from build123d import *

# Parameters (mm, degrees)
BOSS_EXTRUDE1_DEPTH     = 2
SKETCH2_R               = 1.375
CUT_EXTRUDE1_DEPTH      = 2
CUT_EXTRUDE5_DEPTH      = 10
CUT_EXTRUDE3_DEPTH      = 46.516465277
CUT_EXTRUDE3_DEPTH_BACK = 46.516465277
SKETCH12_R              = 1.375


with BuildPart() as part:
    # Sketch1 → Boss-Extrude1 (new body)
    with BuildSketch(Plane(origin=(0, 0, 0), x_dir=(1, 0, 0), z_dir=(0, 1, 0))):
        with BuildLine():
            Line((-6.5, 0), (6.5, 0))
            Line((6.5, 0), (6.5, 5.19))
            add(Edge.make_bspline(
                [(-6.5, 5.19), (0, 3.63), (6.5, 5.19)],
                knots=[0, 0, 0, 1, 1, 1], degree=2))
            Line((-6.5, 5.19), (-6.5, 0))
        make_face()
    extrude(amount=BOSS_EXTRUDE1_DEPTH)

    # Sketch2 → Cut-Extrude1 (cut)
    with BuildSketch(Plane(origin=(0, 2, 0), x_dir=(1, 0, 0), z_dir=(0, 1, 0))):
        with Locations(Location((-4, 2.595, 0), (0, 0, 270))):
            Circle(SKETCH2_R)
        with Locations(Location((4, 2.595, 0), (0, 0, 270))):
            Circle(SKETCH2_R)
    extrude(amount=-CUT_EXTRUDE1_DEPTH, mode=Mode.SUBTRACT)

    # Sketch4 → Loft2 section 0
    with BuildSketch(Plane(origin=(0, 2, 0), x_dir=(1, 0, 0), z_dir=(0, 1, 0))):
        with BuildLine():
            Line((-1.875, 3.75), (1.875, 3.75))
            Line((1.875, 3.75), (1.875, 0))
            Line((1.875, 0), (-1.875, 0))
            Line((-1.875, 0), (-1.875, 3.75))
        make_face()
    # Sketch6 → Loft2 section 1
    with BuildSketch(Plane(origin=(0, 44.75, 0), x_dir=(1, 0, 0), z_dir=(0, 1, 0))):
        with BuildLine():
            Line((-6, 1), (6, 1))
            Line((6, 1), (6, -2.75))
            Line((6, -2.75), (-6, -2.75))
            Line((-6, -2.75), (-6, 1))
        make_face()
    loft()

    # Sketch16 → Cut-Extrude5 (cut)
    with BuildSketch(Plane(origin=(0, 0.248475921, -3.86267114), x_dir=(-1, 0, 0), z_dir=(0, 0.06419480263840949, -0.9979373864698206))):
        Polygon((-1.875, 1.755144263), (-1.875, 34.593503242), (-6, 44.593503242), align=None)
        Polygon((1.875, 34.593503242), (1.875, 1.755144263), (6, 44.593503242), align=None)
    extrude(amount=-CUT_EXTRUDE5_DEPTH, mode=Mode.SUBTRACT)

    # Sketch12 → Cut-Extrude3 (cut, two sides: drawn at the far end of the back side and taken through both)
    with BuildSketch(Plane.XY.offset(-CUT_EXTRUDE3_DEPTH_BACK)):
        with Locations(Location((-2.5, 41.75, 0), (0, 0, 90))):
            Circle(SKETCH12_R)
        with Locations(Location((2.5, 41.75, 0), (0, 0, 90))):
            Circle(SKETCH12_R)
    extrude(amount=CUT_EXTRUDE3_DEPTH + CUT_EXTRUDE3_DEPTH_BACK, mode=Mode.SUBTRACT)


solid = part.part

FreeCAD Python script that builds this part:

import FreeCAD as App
import Part
import Sketcher
from FreeCAD import Vector
Q = App.Units.Quantity

doc = App.newDocument("Part")
body = doc.addObject("PartDesign::Body", "Body")

# Sketch on XZ plane
sketch1 = doc.addObject("Sketcher::SketchObject", "Sketch")
body.addObject(sketch1)
sketch1.AttachmentSupport = (doc.XZ_Plane, [""])
sketch1.MapMode = "FlatFace"
sketch1.addGeometry([
    Part.LineSegment(Vector(-6.5, 0, 0), Vector(6.5, 0, 0)),
    Part.LineSegment(Vector(6.5, 0, 0), Vector(6.5, -5.19, 0)),
    Part.BSplineCurve([Vector(-6.5, -5.19, 0), Vector(0, -3.63, 0), Vector(6.5, -5.19, 0)], [3, 3], [0, 1], False, 2, [1, 1, 1], False),
    Part.LineSegment(Vector(-6.5, -5.19, 0), Vector(-6.5, 0, 0)),
], False)
sketch1.addConstraint([
    Sketcher.Constraint("Block", 2),
    Sketcher.Constraint("Coincident", 0, 2, 1, 1),
    Sketcher.Constraint("Coincident", 1, 2, 2, 2),
    Sketcher.Constraint("Coincident", 2, 1, 3, 1),
    Sketcher.Constraint("Coincident", 3, 2, 0, 1),
    Sketcher.Constraint("Horizontal", 0),
    Sketcher.Constraint("Vertical", 1),
    Sketcher.Constraint("Vertical", 3),
    Sketcher.Constraint("PointOnObject", 0, 2, -1),
])
pad1 = doc.addObject("PartDesign::Pad", "Pad")
body.addObject(pad1)
pad1.Profile = sketch1
pad1.Length = 2
pad1.Reversed = True

# Sketch on XZ plane
sketch2 = doc.addObject("Sketcher::SketchObject", "Sketch001")
body.addObject(sketch2)
sketch2.AttachmentSupport = (doc.XZ_Plane, [""])
sketch2.MapMode = "FlatFace"
sketch2.AttachmentOffset = App.Placement(Vector(0, 0, -2), App.Rotation())
sketch2.addGeometry([
    Part.Circle(Vector(-4, -2.6, 0), Vector(0, 0, 1), 1.4),
    Part.Circle(Vector(4, -2.6, 0), Vector(0, 0, 1), 1.4),
], False)
sketch2.addConstraint([
    Sketcher.Constraint("Equal", 0, 1),
    Sketcher.Constraint("Symmetric", 0, 3, 1, 3, -2),
    Sketcher.Constraint("Diameter", 0, Q("2.75 mm")),
    Sketcher.Constraint("DistanceX", 0, 3, -1, 1, Q("4 mm")),
    Sketcher.Constraint("DistanceY", 0, 3, -1, 1, Q("2.595 mm")),
])
pocket1 = doc.addObject("PartDesign::Pocket", "Pocket")
body.addObject(pocket1)
pocket1.Profile = sketch2
pocket1.Length = 2
pocket1.Reversed = True

# Sketch on XZ plane
sketch3 = doc.addObject("Sketcher::SketchObject", "Sketch002")
body.addObject(sketch3)
sketch3.AttachmentSupport = (doc.XZ_Plane, [""])
sketch3.MapMode = "FlatFace"
sketch3.AttachmentOffset = App.Placement(Vector(0, 0, -2), App.Rotation())
sketch3.addGeometry([
    Part.LineSegment(Vector(1.9, -3.8, 0), Vector(-1.9, -3.8, 0)),
    Part.LineSegment(Vector(-1.9, -3.8, 0), Vector(-1.9, 0, 0)),
    Part.LineSegment(Vector(-1.9, 0, 0), Vector(1.9, 0, 0)),
    Part.LineSegment(Vector(1.9, 0, 0), Vector(1.9, -3.8, 0)),
], False)
sketch3.addConstraint([
    Sketcher.Constraint("Coincident", 0, 2, 1, 1),
    Sketcher.Constraint("Coincident", 1, 2, 2, 1),
    Sketcher.Constraint("Coincident", 2, 2, 3, 1),
    Sketcher.Constraint("Coincident", 3, 2, 0, 1),
    Sketcher.Constraint("Horizontal", 0),
    Sketcher.Constraint("Vertical", 1),
    Sketcher.Constraint("Horizontal", 2),
    Sketcher.Constraint("Vertical", 3),
    Sketcher.Constraint("Symmetric", 1, 2, 2, 2, -1, 1),
    Sketcher.Constraint("Equal", 2, 1),
    Sketcher.Constraint("DistanceX", 0, 2, 0, 1, Q("3.75 mm")),
])

# Sketch on XZ plane
sketch4 = doc.addObject("Sketcher::SketchObject", "Sketch003")
body.addObject(sketch4)
sketch4.AttachmentSupport = (doc.XZ_Plane, [""])
sketch4.MapMode = "FlatFace"
sketch4.AttachmentOffset = App.Placement(Vector(0, 0, -44.75), App.Rotation())
sketch4.addGeometry([
    Part.LineSegment(Vector(6, -1, 0), Vector(-6, -1, 0)),
    Part.LineSegment(Vector(-6, -1, 0), Vector(-6, 2.8, 0)),
    Part.LineSegment(Vector(-6, 2.8, 0), Vector(6, 2.8, 0)),
    Part.LineSegment(Vector(6, 2.8, 0), Vector(6, -1, 0)),
], False)
sketch4.addConstraint([
    Sketcher.Constraint("Coincident", 0, 2, 1, 1),
    Sketcher.Constraint("Coincident", 1, 2, 2, 1),
    Sketcher.Constraint("Coincident", 2, 2, 3, 1),
    Sketcher.Constraint("Coincident", 3, 2, 0, 1),
    Sketcher.Constraint("Horizontal", 0),
    Sketcher.Constraint("Vertical", 1),
    Sketcher.Constraint("Horizontal", 2),
    Sketcher.Constraint("Vertical", 3),
    Sketcher.Constraint("DistanceX", 0, 2, 0, 1, Q("12 mm")),
    Sketcher.Constraint("DistanceX", 0, 2, -1, 1, Q("6 mm")),
    Sketcher.Constraint("DistanceY", 0, 2, -1, 1, Q("1 mm")),
    Sketcher.Constraint("DistanceY", 1, 1, 1, 2, Q("3.75 mm")),
])

additiveloft = doc.addObject("PartDesign::AdditiveLoft", "AdditiveLoft")
body.addObject(additiveloft)
additiveloft.Profile = sketch3
additiveloft.Sections = [sketch4]

# Sketch on an angled plane
sketch5 = doc.addObject("Sketcher::SketchObject", "Sketch004")
body.addObject(sketch5)
sketch5.Placement = App.Placement(Vector(0, 0.248476, -3.862671), App.Rotation(Vector(-1, 0, 0), Vector(0, 0.997937386, 0.064194803), Vector(0, 0.064194803, -0.997937386), "ZXY"))
sketch5.addGeometry([
    Part.LineSegment(Vector(-2, 2, 0), Vector(-2, 35, 0)),  # 0
    Part.LineSegment(Vector(-2, 35, 0), Vector(-6, 45, 0)),  # 1
    Part.LineSegment(Vector(-6, 45, 0), Vector(-2, 2, 0)),  # 2
    Part.LineSegment(Vector(2, 35, 0), Vector(2, 2, 0)),  # 3
    Part.LineSegment(Vector(2, 2, 0), Vector(6, 45, 0)),  # 4
    Part.LineSegment(Vector(6, 45, 0), Vector(2, 35, 0)),  # 5
], False)
sketch5.addConstraint([
    Sketcher.Constraint("Coincident", 0, 2, 1, 1),
    Sketcher.Constraint("Coincident", 1, 2, 2, 1),
    Sketcher.Constraint("Coincident", 2, 2, 0, 1),
    Sketcher.Constraint("Coincident", 3, 2, 4, 1),
    Sketcher.Constraint("Coincident", 4, 2, 5, 1),
    Sketcher.Constraint("Coincident", 5, 2, 3, 1),
    Sketcher.Constraint("Vertical", 0),
    Sketcher.Constraint("Vertical", 3),
    Sketcher.Constraint("Symmetric", 2, 2, 3, 2, -2),
    Sketcher.Constraint("Symmetric", 1, 2, 4, 2, -2),
    Sketcher.Constraint("Horizontal", 0, 2, 5, 2),
    Sketcher.Constraint("DistanceX", 1, 2, -1, 1, Q("6 mm")),
    Sketcher.Constraint("DistanceY", 0, 2, 1, 2, Q("10 mm")),
    Sketcher.Constraint("DistanceX", 2, 2, 3, 2, Q("3.75 mm")),
    Sketcher.Constraint("DistanceY", 0, 1, 0, 2, Q("32.838359 mm")),
    Sketcher.Constraint("DistanceY", -1, 1, 0, 2, Q("34.593503 mm")),
])
pocket2 = doc.addObject("PartDesign::Pocket", "Pocket001")
body.addObject(pocket2)
pocket2.Profile = sketch5
pocket2.Length = 10

# Sketch on XY plane
sketch6 = doc.addObject("Sketcher::SketchObject", "Sketch005")
body.addObject(sketch6)
sketch6.AttachmentSupport = (doc.XY_Plane, [""])
sketch6.MapMode = "FlatFace"
sketch6.addGeometry([
    Part.Circle(Vector(-2.5, 41.8, 0), Vector(0, 0, 1), 1.4),
    Part.Circle(Vector(2.5, 41.8, 0), Vector(0, 0, 1), 1.4),
], False)
sketch6.addConstraint([
    Sketcher.Constraint("Equal", 0, 1),
    Sketcher.Constraint("Symmetric", 0, 3, 1, 3, -2),
    Sketcher.Constraint("Diameter", 0, Q("2.75 mm")),
    Sketcher.Constraint("DistanceX", 0, 3, 1, 3, Q("5 mm")),
    Sketcher.Constraint("DistanceY", -1, 1, 0, 3, Q("41.75 mm")),
])
pocket3 = doc.addObject("PartDesign::Pocket", "Pocket002")
body.addObject(pocket3)
pocket3.Profile = sketch6
pocket3.Type = "ThroughAll"
pocket3.Midplane = True

doc.recompute()
